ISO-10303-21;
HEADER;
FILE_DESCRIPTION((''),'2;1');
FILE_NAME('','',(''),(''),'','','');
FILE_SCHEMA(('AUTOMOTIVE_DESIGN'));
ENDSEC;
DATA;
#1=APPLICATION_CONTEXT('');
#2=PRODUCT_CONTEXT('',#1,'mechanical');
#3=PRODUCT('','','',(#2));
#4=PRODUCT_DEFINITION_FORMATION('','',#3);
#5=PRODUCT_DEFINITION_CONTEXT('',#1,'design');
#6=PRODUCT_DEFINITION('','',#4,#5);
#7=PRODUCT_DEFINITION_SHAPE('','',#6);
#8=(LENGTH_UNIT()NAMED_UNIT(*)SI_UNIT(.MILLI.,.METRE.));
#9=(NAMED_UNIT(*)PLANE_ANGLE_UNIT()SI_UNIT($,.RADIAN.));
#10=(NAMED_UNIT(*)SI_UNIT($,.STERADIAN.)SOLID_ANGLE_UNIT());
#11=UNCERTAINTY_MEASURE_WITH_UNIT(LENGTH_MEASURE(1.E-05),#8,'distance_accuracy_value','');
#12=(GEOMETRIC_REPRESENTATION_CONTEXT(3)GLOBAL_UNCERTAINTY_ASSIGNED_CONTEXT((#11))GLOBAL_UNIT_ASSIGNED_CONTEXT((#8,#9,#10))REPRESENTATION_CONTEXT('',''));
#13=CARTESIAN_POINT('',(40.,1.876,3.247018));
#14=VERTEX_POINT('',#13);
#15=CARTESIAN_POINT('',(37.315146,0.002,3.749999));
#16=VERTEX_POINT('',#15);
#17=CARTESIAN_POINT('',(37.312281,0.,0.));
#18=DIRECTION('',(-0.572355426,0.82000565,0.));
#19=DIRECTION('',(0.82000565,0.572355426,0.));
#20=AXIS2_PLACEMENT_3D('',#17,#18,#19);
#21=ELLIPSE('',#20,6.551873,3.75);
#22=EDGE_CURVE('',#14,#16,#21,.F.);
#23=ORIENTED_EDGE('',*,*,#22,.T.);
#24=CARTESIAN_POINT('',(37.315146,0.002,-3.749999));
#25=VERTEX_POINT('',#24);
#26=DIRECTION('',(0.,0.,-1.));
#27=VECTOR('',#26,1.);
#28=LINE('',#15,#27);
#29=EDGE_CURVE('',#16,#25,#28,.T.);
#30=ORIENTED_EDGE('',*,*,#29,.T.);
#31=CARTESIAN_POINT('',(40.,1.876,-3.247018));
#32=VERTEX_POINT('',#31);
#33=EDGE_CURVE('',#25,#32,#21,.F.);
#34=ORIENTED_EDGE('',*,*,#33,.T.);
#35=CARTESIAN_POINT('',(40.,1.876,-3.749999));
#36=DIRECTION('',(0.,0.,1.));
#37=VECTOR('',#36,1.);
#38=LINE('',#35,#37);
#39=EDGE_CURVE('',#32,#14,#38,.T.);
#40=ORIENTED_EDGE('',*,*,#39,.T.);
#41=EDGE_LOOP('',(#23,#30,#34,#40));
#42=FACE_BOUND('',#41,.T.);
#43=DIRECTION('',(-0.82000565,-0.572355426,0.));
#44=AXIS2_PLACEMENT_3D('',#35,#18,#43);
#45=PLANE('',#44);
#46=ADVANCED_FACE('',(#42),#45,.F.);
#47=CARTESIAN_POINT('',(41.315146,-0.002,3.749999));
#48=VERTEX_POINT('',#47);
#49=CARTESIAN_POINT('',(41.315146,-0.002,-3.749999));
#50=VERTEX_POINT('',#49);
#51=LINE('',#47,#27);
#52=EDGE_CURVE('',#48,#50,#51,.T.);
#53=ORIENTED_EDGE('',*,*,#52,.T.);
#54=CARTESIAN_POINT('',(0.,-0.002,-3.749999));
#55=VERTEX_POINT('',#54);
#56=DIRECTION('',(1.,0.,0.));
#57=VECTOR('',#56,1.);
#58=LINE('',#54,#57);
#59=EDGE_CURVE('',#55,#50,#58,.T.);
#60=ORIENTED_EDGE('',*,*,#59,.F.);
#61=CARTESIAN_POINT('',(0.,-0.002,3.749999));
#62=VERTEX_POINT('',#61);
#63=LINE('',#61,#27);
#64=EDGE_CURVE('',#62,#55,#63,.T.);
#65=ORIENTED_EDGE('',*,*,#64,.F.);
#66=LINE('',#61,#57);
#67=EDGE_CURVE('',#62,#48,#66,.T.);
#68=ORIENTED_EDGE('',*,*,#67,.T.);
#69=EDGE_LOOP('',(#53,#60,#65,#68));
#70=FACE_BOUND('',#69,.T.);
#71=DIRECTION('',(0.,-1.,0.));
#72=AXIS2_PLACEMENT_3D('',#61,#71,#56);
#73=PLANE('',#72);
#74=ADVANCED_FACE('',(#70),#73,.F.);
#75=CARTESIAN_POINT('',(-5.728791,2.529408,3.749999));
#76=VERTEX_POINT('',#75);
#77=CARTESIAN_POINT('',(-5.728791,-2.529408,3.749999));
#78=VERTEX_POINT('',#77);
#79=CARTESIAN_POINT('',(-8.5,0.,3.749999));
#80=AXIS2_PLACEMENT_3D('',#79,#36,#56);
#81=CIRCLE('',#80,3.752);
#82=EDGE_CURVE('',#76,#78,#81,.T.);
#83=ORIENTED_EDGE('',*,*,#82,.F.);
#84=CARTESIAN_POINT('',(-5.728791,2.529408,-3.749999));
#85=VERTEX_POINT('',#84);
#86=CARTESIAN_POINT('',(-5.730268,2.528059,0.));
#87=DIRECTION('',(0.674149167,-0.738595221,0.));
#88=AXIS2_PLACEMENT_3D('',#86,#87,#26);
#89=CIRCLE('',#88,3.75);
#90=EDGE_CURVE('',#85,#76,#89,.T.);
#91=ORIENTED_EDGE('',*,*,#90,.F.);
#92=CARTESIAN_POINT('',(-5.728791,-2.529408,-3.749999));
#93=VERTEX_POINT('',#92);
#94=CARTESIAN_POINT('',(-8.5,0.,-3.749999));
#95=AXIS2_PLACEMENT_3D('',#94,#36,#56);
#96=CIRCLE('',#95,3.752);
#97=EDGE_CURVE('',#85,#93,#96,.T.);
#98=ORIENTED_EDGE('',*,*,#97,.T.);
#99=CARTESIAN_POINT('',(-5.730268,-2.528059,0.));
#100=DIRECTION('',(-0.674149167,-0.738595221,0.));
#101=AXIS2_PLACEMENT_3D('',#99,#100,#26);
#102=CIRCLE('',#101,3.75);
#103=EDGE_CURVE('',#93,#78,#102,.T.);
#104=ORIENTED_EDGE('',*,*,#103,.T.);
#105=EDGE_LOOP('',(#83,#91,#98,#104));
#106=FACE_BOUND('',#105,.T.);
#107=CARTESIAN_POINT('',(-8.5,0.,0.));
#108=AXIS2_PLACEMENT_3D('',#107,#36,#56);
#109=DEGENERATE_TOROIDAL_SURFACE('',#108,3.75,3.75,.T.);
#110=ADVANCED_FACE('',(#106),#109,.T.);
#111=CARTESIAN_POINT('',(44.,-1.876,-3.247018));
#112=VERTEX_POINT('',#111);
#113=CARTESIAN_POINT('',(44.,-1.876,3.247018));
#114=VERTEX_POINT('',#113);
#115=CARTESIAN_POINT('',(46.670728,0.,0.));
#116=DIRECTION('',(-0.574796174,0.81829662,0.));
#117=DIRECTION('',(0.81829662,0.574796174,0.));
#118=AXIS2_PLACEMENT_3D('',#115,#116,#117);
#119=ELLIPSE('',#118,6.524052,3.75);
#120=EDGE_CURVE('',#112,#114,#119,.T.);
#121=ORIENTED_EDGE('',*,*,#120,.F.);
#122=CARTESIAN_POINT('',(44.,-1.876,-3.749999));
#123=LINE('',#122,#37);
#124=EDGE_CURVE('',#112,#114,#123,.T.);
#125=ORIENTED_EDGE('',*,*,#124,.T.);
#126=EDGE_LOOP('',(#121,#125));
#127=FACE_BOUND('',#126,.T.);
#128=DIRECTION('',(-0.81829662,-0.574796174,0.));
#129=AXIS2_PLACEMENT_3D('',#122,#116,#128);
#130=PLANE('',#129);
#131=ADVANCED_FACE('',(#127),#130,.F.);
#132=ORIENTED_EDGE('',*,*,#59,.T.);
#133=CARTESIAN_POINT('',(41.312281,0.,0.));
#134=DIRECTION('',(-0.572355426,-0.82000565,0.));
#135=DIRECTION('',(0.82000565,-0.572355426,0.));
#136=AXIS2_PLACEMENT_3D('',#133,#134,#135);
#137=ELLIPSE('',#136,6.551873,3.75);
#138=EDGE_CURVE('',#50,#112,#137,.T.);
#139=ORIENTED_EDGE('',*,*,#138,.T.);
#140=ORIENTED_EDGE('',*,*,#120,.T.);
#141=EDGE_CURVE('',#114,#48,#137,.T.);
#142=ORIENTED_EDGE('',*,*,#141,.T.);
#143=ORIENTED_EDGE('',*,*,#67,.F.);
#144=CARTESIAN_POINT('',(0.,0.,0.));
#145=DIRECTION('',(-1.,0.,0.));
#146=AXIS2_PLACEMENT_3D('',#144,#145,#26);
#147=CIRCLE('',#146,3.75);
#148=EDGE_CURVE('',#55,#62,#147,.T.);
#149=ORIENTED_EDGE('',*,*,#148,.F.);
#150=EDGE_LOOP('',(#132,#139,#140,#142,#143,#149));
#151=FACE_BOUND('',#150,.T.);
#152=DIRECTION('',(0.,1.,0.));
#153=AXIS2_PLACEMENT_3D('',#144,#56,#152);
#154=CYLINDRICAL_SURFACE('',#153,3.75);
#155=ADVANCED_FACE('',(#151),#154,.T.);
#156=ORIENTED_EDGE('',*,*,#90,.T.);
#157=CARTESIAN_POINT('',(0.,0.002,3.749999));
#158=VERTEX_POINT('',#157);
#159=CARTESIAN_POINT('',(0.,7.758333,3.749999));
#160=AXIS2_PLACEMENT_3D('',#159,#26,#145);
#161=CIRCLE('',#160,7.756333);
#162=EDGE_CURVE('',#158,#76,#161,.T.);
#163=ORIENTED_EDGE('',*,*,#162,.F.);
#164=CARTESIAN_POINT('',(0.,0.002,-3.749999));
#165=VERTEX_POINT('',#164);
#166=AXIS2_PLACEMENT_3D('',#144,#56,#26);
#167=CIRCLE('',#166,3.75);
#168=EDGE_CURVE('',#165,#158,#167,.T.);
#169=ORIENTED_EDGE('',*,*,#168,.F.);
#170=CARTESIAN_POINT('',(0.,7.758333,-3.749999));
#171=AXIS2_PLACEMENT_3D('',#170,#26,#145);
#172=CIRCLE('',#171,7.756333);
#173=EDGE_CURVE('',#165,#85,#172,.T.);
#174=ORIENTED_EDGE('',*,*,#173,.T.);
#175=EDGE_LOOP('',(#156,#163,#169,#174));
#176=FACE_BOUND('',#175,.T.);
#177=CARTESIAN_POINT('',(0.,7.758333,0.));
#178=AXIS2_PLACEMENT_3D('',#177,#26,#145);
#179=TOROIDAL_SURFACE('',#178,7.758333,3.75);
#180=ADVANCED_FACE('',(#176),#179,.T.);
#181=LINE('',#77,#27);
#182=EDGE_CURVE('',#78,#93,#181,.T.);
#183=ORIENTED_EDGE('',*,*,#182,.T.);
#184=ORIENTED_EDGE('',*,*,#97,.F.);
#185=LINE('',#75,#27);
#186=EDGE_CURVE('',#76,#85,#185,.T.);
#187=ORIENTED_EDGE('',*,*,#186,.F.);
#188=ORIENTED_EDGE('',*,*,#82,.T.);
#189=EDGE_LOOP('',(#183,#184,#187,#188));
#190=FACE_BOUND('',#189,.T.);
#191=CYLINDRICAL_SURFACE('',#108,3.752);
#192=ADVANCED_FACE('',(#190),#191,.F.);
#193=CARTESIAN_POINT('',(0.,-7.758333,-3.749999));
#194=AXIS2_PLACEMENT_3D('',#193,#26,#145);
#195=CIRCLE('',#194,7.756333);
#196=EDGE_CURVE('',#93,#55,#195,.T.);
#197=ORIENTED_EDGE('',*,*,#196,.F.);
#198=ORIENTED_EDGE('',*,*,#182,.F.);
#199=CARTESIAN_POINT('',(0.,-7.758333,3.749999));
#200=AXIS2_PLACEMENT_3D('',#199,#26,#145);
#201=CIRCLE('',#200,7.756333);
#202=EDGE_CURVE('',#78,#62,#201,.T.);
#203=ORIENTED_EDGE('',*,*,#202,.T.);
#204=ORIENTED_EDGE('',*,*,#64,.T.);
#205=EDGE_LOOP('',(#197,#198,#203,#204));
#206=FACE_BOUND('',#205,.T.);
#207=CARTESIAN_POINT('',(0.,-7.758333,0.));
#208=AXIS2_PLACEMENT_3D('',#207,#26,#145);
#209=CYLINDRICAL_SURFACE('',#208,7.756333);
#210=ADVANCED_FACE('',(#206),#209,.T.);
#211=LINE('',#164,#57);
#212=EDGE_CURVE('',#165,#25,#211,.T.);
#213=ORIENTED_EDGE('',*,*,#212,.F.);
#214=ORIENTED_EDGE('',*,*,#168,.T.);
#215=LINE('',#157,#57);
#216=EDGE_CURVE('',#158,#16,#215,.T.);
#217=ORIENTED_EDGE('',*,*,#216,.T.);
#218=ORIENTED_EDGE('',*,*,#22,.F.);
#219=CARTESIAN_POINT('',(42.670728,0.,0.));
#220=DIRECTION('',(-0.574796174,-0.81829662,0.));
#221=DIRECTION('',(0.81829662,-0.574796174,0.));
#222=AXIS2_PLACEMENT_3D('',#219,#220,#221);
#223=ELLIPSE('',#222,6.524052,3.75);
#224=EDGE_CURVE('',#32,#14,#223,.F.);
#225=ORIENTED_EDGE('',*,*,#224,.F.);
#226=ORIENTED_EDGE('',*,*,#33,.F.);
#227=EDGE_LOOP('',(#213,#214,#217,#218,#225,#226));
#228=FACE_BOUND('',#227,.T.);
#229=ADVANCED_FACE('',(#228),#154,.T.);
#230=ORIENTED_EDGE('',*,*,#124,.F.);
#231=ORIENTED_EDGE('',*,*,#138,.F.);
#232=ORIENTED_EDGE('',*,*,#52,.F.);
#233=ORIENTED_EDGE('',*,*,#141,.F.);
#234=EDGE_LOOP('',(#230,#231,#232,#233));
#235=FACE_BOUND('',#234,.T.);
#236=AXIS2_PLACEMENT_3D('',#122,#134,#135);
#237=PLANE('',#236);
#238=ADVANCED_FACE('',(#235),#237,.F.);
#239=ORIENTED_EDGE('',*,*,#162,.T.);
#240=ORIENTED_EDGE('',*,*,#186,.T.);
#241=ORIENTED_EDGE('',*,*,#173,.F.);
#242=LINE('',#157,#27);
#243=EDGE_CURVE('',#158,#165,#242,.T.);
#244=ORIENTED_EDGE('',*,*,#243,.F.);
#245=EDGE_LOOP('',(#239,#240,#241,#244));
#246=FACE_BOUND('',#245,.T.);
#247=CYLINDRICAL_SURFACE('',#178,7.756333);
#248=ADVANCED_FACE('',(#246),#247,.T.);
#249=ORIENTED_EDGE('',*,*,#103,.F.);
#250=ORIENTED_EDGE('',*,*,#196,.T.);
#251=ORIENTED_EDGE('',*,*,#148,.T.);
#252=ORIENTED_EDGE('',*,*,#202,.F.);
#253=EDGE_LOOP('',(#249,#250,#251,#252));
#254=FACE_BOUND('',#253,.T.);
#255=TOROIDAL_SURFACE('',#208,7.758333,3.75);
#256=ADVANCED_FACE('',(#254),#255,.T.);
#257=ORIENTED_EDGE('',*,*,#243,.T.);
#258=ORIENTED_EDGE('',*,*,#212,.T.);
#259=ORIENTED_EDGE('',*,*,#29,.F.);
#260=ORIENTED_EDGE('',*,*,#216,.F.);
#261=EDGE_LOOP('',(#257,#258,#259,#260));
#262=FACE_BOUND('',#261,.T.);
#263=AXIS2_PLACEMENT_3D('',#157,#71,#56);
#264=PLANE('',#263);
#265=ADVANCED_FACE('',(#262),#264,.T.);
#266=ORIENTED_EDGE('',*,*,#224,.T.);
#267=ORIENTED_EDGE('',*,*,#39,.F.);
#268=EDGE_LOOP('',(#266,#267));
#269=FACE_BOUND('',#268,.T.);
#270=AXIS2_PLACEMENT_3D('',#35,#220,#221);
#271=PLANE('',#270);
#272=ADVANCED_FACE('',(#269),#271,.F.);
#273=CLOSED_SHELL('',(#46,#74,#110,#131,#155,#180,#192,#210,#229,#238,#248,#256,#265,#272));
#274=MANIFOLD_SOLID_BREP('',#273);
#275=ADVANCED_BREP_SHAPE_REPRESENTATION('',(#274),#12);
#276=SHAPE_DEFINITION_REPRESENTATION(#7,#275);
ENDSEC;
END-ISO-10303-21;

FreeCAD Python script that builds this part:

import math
import FreeCAD as App
import Part
import Sketcher
Q = App.Units.Quantity


def add_polygon(sketch, points):
    """Adds a closed chain of lines whose ends are joined by coincident constraints."""
    first, n = sketch.GeometryCount, len(points)
    for a, b in zip(points, points[1:] + points[:1]):
        sketch.addGeometry(Part.LineSegment(App.Vector(*a, 0), App.Vector(*b, 0)), False)
    for i in range(n):
        sketch.addConstraint(Sketcher.Constraint("Coincident", first + i, 2, first + (i + 1) % n, 1))

doc = App.newDocument("Part")
body = doc.addObject("PartDesign::Body", "Body")

# Sketch on YZ plane
sketch1 = body.newObject("Sketcher::SketchObject", "Sketch")
sketch1.AttachmentSupport = (doc.getObject("YZ_Plane"), [""])
sketch1.MapMode = "FlatFace"
sketch1.AttachmentOffset = App.Placement(App.Vector(0, 0, 40), App.Rotation())
sketch1.addGeometry(Part.LineSegment(App.Vector(0.002, 3.749999, 0), App.Vector(0.002, -3.749999, 0)), False)
sketch1.addGeometry(Part.ArcOfCircle(Part.Circle(App.Vector(0, 0, 0), App.Vector(0, 0, 1), 3.75), math.radians(-89.969442), math.radians(89.969442)), False)
sketch1.addConstraint(Sketcher.Constraint("Coincident", 0, 1, 1, 2))
sketch1.addConstraint(Sketcher.Constraint("Coincident", 1, 1, 0, 2))
sketch1.addConstraint(Sketcher.Constraint("Vertical", 0))
sketch1.addConstraint(Sketcher.Constraint("Coincident", 1, 3, -1, 1))
sketch1.addConstraint(Sketcher.Constraint("Radius", 1, Q("3.75 mm")))
sketch1.addConstraint(Sketcher.Constraint("DistanceX", -1, 1, 0, 1, Q("0.002 mm")))

# Sketch on XY plane
sketch2 = body.newObject("Sketcher::SketchObject", "Sketch001")
sketch2.AttachmentSupport = (doc.getObject("XY_Plane"), [""])
sketch2.MapMode = "FlatFace"
sketch2.addGeometry(Part.LineSegment(App.Vector(40, 3.75, 0), App.Vector(0, 3.75, 0)), False)
sketch2.addGeometry(Part.ArcOfCircle(Part.Circle(App.Vector(0, 7.758333, 0), App.Vector(0, 0, 1), 4.008333), math.radians(-137.611887), math.radians(-90)), False)
sketch2.addGeometry(Part.ArcOfCircle(Part.Circle(App.Vector(-8.5, 0, 0), App.Vector(0, 0, 1), 7.5), math.radians(42.388113), math.radians(317.611887)), False)
sketch2.addGeometry(Part.ArcOfCircle(Part.Circle(App.Vector(0, -7.758333, 0), App.Vector(0, 0, 1), 4.008333), math.radians(90), math.radians(137.611887)), False)
sketch2.addGeometry(Part.LineSegment(App.Vector(0, -3.75, 0), App.Vector(44, -3.75, 0)), False)
sketch2.addConstraint(Sketcher.Constraint("Tangent", 0, 2, 1, 2))
sketch2.addConstraint(Sketcher.Constraint("Tangent", 1, 1, 2, 1))
sketch2.addConstraint(Sketcher.Constraint("Tangent", 2, 2, 3, 2))
sketch2.addConstraint(Sketcher.Constraint("Tangent", 3, 1, 4, 1))
sketch2.addConstraint(Sketcher.Constraint("Horizontal", 0))
sketch2.addConstraint(Sketcher.Constraint("Horizontal", 4))
sketch2.addConstraint(Sketcher.Constraint("Equal", 1, 3))
sketch2.addConstraint(Sketcher.Constraint("Symmetric", 1, 3, 3, 3, -1, 1))
sketch2.addConstraint(Sketcher.Constraint("PointOnObject", 1, 3, -2))
sketch2.addConstraint(Sketcher.Constraint("Radius", 2, Q("7.5 mm")))
sketch2.addConstraint(Sketcher.Constraint("DistanceX", 0, 2, 0, 1, Q("40 mm")))
sketch2.addConstraint(Sketcher.Constraint("DistanceX", 4, 1, 4, 2, Q("44 mm")))
sketch2.addConstraint(Sketcher.Constraint("DistanceX", 2, 3, -1, 1, Q("8.5 mm")))
sketch2.addConstraint(Sketcher.Constraint("DistanceY", 3, 1, 0, 2, Q("7.5 mm")))
doc.recompute()

additivepipe = body.newObject("PartDesign::AdditivePipe", "AdditivePipe")
additivepipe.Profile = sketch1
additivepipe.Spine = (sketch2, ["Edge1", "Edge2", "Edge3", "Edge4", "Edge5"])

# Sketch on XY plane
sketch3 = body.newObject("Sketcher::SketchObject", "Sketch002")
sketch3.AttachmentSupport = (doc.getObject("XY_Plane"), [""])
sketch3.MapMode = "FlatFace"
add_polygon(sketch3, [(37.317883, 3.76), (40, 1.876), (37.312281, 0), (41.312281, 0), (44, -1.876), (41.317883, -3.76), (44.01, -3.76), (44.01, 3.76)])  # lines 0-7
sketch3.addConstraint(Sketcher.Constraint("Horizontal", 2))
sketch3.addConstraint(Sketcher.Constraint("Horizontal", 5))
sketch3.addConstraint(Sketcher.Constraint("Vertical", 6))
sketch3.addConstraint(Sketcher.Constraint("Horizontal", 7))
sketch3.addConstraint(Sketcher.Constraint("PointOnObject", 1, 2, -1))
sketch3.addConstraint(Sketcher.Constraint("Equal", 0, 1))
sketch3.addConstraint(Sketcher.Constraint("Equal", 1, 3))
sketch3.addConstraint(Sketcher.Constraint("Equal", 3, 4))
sketch3.addConstraint(Sketcher.Constraint("DistanceX", 2, 1, 2, 2, Q("4 mm")))
sketch3.addConstraint(Sketcher.Constraint("DistanceX", -1, 1, 0, 2, Q("40 mm")))
sketch3.addConstraint(Sketcher.Constraint("DistanceX", -1, 1, 3, 2, Q("44 mm")))
sketch3.addConstraint(Sketcher.Constraint("DistanceX", 7, 2, 4, 2, Q("4 mm")))
sketch3.addConstraint(Sketcher.Constraint("DistanceY", 6, 1, 6, 2, Q("7.52 mm")))
sketch3.addConstraint(Sketcher.Constraint("DistanceX", -1, 1, 5, 2, Q("44.01 mm")))
sketch3.addConstraint(Sketcher.Constraint("DistanceY", -1, 1, 0, 2, Q("1.876 mm")))
sketch3.addConstraint(Sketcher.Constraint("DistanceX", 5, 1, 5, 2, Q("2.692117 mm")))
pocket1 = body.newObject("PartDesign::Pocket", "Pocket")
pocket1.Profile = sketch3
pocket1.Type = "ThroughAll"
pocket1.Midplane = True

doc.recompute()
